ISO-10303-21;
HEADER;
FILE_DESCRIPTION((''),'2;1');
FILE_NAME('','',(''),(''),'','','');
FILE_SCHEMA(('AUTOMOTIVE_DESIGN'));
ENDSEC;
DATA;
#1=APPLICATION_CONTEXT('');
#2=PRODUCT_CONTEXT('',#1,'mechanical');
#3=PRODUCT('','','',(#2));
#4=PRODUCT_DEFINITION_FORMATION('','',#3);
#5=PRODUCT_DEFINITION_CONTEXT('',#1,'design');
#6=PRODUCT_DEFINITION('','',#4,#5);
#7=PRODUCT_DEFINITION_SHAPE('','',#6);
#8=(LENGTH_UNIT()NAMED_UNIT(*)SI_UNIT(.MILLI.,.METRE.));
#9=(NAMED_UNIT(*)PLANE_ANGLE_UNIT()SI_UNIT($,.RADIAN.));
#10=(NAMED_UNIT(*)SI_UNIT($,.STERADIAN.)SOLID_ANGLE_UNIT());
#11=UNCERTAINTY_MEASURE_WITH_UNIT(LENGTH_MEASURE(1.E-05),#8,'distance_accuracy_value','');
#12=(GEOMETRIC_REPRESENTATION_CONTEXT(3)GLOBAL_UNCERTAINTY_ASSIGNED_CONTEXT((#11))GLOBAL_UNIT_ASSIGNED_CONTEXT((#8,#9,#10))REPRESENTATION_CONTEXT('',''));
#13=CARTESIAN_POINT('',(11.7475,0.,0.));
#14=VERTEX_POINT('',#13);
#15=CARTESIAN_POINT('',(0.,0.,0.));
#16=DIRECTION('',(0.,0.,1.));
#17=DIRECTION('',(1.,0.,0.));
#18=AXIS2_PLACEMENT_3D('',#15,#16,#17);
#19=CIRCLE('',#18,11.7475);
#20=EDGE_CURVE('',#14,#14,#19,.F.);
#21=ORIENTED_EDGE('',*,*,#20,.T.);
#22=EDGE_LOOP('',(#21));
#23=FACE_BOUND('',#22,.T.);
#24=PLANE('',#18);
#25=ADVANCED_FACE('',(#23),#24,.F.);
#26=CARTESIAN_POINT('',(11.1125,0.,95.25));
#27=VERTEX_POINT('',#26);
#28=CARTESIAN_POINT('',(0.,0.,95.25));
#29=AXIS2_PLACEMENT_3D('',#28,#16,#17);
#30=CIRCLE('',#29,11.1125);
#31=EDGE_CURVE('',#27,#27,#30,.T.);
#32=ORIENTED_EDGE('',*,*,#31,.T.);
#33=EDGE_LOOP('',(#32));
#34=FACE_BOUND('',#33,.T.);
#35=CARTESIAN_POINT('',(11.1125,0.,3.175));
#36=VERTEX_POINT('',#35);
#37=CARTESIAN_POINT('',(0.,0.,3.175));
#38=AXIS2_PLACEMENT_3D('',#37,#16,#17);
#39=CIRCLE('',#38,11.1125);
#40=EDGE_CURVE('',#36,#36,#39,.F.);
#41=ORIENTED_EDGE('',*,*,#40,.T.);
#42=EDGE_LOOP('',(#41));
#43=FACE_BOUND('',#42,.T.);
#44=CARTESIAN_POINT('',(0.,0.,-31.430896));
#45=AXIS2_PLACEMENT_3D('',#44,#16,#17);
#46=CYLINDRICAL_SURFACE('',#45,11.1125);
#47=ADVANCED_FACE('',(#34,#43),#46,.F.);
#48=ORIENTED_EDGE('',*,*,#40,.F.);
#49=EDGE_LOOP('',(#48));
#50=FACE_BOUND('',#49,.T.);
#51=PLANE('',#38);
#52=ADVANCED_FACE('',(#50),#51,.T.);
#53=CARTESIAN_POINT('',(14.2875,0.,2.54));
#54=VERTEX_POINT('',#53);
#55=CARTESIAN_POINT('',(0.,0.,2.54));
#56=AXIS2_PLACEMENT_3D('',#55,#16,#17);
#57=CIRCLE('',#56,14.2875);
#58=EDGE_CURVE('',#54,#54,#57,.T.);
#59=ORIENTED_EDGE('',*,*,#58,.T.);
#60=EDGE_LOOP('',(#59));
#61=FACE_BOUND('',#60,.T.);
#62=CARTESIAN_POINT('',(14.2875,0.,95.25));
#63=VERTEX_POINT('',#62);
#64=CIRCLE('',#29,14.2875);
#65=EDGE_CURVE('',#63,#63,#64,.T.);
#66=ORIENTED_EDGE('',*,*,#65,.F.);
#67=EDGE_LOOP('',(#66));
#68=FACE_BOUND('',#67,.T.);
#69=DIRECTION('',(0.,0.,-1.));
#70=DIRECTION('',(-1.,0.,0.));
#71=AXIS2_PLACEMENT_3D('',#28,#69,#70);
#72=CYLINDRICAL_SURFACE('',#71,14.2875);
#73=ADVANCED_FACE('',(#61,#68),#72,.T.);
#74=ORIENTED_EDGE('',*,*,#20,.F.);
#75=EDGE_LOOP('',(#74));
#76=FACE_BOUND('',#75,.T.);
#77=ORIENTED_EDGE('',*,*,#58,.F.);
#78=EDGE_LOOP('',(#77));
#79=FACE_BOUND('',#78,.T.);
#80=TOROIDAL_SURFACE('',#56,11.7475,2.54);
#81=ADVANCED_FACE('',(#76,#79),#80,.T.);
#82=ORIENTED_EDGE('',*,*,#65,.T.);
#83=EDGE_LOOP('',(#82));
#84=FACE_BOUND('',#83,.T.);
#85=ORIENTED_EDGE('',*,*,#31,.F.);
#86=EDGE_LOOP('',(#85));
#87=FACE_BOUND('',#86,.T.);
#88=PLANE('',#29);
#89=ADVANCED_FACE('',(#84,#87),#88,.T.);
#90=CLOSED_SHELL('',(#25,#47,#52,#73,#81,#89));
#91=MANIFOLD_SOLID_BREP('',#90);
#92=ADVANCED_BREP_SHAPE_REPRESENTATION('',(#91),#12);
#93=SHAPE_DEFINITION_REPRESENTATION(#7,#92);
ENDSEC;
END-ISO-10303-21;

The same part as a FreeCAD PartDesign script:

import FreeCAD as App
import Part
import Sketcher

V = App.Vector
Q = App.Units.Quantity


def edges_at(feature, points):
    """Names of the edges that pass closest to the given points."""
    edges = feature.Shape.Edges
    near = lambda p: min(range(len(edges)), key=lambda i: edges[i].distToShape(Part.Vertex(*p))[0])
    return sorted({f"Edge{near(p) + 1}" for p in points})

doc = App.newDocument("Part")
body = doc.addObject("PartDesign::Body", "Body")

# Sketch on XY plane
sketch1 = doc.addObject("Sketcher::SketchObject", "Sketch")
body.addObject(sketch1)
sketch1.AttachmentSupport = (doc.XY_Plane, [""])
sketch1.MapMode = "FlatFace"
sketch1.addGeometry(Part.Circle(V(0, 0, 0), V(0, 0, 1), 14.2875), False)
sketch1.addConstraint([
    Sketcher.Constraint("Coincident", 0, 3, -1, 1),
    Sketcher.Constraint("Diameter", 0, Q("1.125 in")),
])
pad1 = doc.addObject("PartDesign::Pad", "Pad")
body.addObject(pad1)
pad1.Profile = sketch1
pad1.Length = Q("3.75 in")

# Sketch on XY plane
sketch2 = doc.addObject("Sketcher::SketchObject", "Sketch001")
body.addObject(sketch2)
sketch2.AttachmentSupport = (doc.XY_Plane, [""])
sketch2.MapMode = "FlatFace"
sketch2.AttachmentOffset = App.Placement(V(0, 0, 3.75 * 25.4), App.Rotation())
sketch2.addGeometry(Part.Circle(V(0, 0, 0), V(0, 0, 1), 11.1125), False)
sketch2.addConstraint([
    Sketcher.Constraint("Coincident", 0, 3, -1, 1),
    Sketcher.Constraint("Diameter", 0, Q("0.875 in")),
])
pocket1 = doc.addObject("PartDesign::Pocket", "Pocket")
body.addObject(pocket1)
pocket1.Profile = sketch2
pocket1.Length = Q("3.625 in")
doc.recompute()

fillet = doc.addObject("PartDesign::Fillet", "Fillet")
body.addObject(fillet)
fillet.Base = (pocket1, edges_at(pocket1, [(-14.287, 0, 0)]))
fillet.Radius = Q("0.1 in")

doc.recompute()
